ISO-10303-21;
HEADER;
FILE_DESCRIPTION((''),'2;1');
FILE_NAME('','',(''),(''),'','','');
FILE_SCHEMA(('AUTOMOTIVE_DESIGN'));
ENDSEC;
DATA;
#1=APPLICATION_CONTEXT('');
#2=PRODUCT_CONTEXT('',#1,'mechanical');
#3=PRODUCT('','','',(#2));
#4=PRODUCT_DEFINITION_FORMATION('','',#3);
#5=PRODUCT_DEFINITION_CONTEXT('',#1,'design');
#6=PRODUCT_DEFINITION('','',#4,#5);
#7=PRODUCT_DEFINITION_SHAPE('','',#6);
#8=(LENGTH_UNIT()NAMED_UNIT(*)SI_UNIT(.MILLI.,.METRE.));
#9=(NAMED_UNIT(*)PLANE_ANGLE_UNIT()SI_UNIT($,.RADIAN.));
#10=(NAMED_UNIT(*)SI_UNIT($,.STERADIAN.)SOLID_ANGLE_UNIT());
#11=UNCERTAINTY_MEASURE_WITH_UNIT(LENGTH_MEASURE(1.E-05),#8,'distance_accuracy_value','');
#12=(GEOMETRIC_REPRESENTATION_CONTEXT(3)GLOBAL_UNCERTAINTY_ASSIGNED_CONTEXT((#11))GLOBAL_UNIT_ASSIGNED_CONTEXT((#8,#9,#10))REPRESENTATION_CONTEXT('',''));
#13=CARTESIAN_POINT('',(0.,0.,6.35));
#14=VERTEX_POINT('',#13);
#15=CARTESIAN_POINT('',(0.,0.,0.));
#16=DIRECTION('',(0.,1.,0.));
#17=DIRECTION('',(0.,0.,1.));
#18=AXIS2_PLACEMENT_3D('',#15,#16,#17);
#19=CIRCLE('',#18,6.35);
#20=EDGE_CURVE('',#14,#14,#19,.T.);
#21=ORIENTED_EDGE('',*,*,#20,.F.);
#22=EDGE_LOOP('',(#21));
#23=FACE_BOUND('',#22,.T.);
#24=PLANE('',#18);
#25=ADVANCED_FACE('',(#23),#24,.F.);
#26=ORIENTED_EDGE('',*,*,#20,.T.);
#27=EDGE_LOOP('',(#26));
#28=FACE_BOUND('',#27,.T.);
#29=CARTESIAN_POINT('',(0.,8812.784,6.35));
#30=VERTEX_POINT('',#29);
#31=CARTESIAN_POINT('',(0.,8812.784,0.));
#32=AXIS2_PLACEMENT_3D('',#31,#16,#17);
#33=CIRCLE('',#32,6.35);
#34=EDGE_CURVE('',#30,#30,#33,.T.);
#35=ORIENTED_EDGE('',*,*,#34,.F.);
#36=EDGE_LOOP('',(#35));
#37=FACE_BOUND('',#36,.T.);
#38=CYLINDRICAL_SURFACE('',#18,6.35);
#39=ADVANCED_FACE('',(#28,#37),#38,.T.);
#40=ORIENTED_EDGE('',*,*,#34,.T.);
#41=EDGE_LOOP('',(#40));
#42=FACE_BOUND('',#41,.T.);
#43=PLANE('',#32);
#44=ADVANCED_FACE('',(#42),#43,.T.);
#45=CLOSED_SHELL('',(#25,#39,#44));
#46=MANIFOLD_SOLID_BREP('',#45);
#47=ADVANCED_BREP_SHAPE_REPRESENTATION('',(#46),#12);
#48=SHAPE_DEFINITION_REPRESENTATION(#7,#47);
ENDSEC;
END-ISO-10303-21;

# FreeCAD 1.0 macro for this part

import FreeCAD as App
import Part
import Sketcher
Q = App.Units.Quantity

doc = App.newDocument("Part")
params = doc.addObject("Spreadsheet::Sheet", "Params")
for row, (alias, value) in enumerate([
    ("sketch1_diameter", "0.5 in"),
    ("sketch2_height", "346.96 in"),
], start=1):
    params.set(f"A{row}", alias)
    params.set(f"B{row}", "=" + value)
    params.setAlias(f"B{row}", alias)

body = doc.addObject("PartDesign::Body", "Body")

# Sketch on XZ plane
sketch1 = body.newObject("Sketcher::SketchObject", "Sketch")
sketch1.AttachmentSupport = (doc.getObject("XZ_Plane"), [""])
sketch1.MapMode = "FlatFace"
sketch1.addGeometry(Part.Circle(App.Vector(0, 0, 0), App.Vector(0, 0, 1), 6), False)
sketch1.addConstraint(Sketcher.Constraint("Coincident", 0, 3, -1, 1))
sketch1.addConstraint(Sketcher.Constraint("Diameter", 0, Q("0.5 in")))
sketch1.setExpression("Constraints[1]", "Params.sketch1_diameter")

# Sketch on XY plane
sketch2 = body.newObject("Sketcher::SketchObject", "Sketch001")
sketch2.AttachmentSupport = (doc.getObject("XY_Plane"), [""])
sketch2.MapMode = "FlatFace"
sketch2.addGeometry(Part.LineSegment(App.Vector(0, 0, 0), App.Vector(0, 8813, 0)), False)
sketch2.addConstraint(Sketcher.Constraint("Vertical", 0))
sketch2.addConstraint(Sketcher.Constraint("Coincident", 0, 1, -1, 1))
sketch2.addConstraint(Sketcher.Constraint("DistanceY", 0, 1, 0, 2, Q("346.96 in")))
sketch2.setExpression("Constraints[2]", "Params.sketch2_height")
doc.recompute()

additivepipe = body.newObject("PartDesign::AdditivePipe", "AdditivePipe")
additivepipe.Profile = sketch1
additivepipe.Spine = (sketch2, ["Edge1"])

doc.recompute()
